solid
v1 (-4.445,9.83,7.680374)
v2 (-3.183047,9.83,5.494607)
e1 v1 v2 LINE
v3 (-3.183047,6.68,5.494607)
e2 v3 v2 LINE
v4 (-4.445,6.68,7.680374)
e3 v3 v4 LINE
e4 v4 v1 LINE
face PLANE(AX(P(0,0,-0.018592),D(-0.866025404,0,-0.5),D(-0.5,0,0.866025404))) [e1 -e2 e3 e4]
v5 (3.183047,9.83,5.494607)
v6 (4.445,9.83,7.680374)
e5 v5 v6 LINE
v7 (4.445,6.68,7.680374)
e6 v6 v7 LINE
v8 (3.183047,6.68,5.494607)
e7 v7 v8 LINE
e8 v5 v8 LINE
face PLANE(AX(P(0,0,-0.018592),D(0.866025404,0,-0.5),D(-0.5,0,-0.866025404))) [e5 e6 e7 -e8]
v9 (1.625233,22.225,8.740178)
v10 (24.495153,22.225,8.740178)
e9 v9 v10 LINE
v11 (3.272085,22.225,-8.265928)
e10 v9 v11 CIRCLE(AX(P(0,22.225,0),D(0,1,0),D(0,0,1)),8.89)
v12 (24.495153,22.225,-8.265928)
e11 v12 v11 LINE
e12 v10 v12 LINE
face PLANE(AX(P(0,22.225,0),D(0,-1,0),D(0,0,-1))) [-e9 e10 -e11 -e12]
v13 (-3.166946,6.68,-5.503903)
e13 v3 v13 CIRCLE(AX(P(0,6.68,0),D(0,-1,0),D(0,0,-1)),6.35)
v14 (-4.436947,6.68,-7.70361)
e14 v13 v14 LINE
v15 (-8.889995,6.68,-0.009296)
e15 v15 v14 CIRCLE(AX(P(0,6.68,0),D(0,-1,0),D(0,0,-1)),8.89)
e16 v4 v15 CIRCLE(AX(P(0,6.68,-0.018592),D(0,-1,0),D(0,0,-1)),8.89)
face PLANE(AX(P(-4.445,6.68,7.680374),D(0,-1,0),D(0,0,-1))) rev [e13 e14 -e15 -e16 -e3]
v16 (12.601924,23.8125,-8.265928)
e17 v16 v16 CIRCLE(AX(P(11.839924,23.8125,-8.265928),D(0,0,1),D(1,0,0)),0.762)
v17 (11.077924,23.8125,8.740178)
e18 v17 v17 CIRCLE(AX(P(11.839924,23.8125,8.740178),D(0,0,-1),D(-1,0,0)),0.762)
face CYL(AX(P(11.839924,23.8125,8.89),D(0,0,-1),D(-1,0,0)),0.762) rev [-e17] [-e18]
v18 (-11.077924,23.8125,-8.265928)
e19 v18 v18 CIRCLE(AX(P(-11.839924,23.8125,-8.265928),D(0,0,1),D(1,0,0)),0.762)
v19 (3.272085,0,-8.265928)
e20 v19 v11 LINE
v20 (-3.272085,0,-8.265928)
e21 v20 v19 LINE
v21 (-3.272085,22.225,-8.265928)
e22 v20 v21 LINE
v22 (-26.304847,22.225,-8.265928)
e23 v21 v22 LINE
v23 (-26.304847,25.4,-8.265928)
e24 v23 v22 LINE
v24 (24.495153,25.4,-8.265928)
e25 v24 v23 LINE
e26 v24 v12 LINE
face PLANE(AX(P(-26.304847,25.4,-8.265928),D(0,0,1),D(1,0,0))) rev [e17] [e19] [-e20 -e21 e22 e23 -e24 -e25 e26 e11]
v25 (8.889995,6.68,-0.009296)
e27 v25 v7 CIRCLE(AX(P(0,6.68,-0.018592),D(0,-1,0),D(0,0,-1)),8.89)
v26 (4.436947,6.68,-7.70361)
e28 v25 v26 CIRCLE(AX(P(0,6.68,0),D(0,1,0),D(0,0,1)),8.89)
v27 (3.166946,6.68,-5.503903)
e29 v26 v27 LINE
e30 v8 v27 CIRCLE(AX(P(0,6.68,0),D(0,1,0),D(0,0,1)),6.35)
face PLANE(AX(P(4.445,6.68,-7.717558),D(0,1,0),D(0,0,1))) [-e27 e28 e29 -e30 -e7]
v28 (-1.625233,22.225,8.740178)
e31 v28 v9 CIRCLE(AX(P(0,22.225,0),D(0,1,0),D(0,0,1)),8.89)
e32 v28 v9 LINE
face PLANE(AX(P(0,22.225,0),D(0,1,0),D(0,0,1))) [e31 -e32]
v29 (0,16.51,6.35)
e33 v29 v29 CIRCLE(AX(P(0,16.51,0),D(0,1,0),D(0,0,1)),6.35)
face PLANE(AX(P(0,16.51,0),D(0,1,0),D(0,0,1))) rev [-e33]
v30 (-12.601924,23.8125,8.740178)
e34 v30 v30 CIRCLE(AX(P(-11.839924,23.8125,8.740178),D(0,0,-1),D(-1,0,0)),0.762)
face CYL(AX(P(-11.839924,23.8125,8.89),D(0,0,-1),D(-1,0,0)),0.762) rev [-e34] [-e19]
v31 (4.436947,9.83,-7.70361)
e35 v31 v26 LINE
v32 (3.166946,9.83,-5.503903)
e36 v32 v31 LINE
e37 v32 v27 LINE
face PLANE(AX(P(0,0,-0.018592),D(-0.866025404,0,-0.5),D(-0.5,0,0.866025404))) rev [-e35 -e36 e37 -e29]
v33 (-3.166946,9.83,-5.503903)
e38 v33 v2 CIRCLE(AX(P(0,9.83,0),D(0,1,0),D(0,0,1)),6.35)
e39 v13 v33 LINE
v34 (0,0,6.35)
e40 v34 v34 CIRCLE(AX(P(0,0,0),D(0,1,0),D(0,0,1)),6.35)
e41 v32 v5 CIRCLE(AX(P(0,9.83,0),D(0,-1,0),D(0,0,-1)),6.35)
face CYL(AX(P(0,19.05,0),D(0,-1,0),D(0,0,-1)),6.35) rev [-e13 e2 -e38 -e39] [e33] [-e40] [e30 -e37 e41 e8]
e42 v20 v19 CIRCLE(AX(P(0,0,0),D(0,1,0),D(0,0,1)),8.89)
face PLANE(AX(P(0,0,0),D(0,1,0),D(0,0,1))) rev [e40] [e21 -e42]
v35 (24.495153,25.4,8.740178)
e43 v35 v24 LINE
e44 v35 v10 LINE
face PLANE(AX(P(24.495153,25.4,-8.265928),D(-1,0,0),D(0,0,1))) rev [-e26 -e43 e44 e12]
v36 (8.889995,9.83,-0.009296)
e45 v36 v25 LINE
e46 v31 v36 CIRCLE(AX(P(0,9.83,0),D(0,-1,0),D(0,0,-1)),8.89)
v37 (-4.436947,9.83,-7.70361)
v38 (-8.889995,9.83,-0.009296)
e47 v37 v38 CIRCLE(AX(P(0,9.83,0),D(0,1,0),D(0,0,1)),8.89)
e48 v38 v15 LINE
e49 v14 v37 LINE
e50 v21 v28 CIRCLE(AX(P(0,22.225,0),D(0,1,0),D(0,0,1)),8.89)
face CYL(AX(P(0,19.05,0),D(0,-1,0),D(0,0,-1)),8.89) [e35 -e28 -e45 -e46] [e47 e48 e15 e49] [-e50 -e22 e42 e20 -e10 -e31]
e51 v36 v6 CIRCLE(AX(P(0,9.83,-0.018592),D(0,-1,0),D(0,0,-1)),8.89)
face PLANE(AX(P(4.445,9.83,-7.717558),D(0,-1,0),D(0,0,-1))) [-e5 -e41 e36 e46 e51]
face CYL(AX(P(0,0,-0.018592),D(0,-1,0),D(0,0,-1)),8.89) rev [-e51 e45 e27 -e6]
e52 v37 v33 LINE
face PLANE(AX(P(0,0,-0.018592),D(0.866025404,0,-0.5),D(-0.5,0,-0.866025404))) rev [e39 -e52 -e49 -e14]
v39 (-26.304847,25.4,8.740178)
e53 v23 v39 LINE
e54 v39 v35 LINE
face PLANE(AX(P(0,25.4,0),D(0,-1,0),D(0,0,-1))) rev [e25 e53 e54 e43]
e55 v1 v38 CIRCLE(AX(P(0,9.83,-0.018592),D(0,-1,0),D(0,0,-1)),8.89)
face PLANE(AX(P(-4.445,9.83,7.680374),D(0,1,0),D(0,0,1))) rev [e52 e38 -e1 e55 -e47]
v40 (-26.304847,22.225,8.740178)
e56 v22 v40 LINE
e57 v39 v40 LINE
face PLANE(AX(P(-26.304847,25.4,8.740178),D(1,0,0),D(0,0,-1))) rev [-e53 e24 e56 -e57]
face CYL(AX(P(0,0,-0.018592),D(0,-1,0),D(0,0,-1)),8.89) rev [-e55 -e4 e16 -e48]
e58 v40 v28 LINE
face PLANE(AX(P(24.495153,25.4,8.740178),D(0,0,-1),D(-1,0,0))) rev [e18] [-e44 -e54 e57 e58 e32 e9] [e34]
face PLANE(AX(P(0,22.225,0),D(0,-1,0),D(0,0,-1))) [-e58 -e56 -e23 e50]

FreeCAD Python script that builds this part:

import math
import FreeCAD as App
import Part
import Sketcher

V = App.Vector
Q = App.Units.Quantity


def faces_at(feature, points):
    """Names of the faces that lie closest to the given points."""
    faces = feature.Shape.Faces
    near = lambda p: min(range(len(faces)), key=lambda i: faces[i].distToShape(Part.Vertex(*p))[0])
    return sorted({f"Face{near(p) + 1}" for p in points})


def add_polygon(sketch, points):
    """Adds a closed chain of lines whose ends are joined by coincident constraints."""
    first, n = sketch.GeometryCount, len(points)
    for a, b in zip(points, points[1:] + points[:1]):
        sketch.addGeometry(Part.LineSegment(App.Vector(*a, 0), App.Vector(*b, 0)), False)
    for i in range(n):
        sketch.addConstraint(Sketcher.Constraint("Coincident", first + i, 2, first + (i + 1) % n, 1))

doc = App.newDocument("Part")
body = doc.addObject("PartDesign::Body", "Body")

# Sketch on XZ plane
sketch1 = body.newObject("Sketcher::SketchObject", "Sketch")
sketch1.AttachmentSupport = (doc.getObject("XZ_Plane"), [""])
sketch1.MapMode = "FlatFace"
sketch1.addGeometry(Part.Circle(V(0, 0, 0), V(0, 0, 1), 8.89), False)
sketch1.addConstraint([
    Sketcher.Constraint("Coincident", 0, 3, -1, 1),
    Sketcher.Constraint("Diameter", 0, Q("0.7 in")),
])
pad1 = body.newObject("PartDesign::Pad", "Pad")
pad1.Profile = sketch1
pad1.Length = Q("0.75 in")
pad1.Reversed = True
doc.recompute()

thickness = body.newObject("PartDesign::Thickness", "Thickness")
thickness.Base = (pad1, faces_at(pad1, [(0, 0, 0)]))
thickness.Value = Q("0.1 in")
thickness.Reversed = True
thickness.Join = "Intersection"

# Sketch on XZ plane
sketch2 = body.newObject("Sketcher::SketchObject", "Sketch001")
sketch2.AttachmentSupport = (doc.getObject("XZ_Plane"), [""])
sketch2.MapMode = "FlatFace"
sketch2.AttachmentOffset = App.Placement(V(0, 0, -0.75 * 25.4), App.Rotation())
sketch2.addGeometry(Part.Circle(V(0, 0, 0), V(0, 0, 1), 8.89), False)
sketch2.addConstraint([
    Sketcher.Constraint("Coincident", 0, 3, -1, 1),
    Sketcher.Constraint("Diameter", 0, Q("0.7 in")),
])
pad2 = body.newObject("PartDesign::Pad", "Pad001")
pad2.Profile = sketch2
pad2.Length = Q("0.125 in")
pad2.Reversed = True

# Sketch on XZ plane
sketch3 = body.newObject("Sketcher::SketchObject", "Sketch002")
sketch3.AttachmentSupport = (doc.getObject("XZ_Plane"), [""])
sketch3.MapMode = "FlatFace"
sketch3.AttachmentOffset = App.Placement(V(0, 0, -0.875 * 25.4), App.Rotation())
add_polygon(sketch3, [(-26.304847, -8.265928), (-26.304847, 8.740178), (24.495153, 8.740178), (24.495153, -8.265928)])  # lines 0-3
sketch3.addConstraint([
    Sketcher.Constraint("Vertical", 0),
    Sketcher.Constraint("Horizontal", 1),
    Sketcher.Constraint("Vertical", 2),
    Sketcher.Constraint("Horizontal", 3),
    Sketcher.Constraint("DistanceX", 1, 1, 1, 2, Q("2 in")),
    Sketcher.Constraint("DistanceY", 0, 1, 0, 2, Q("17.006106 mm")),
    Sketcher.Constraint("DistanceY", -1, 1, 0, 2, Q("8.740178 mm")),
    Sketcher.Constraint("DistanceX", 0, 2, -1, 1, Q("26.304847 mm")),
])
pad3 = body.newObject("PartDesign::Pad", "Pad002")
pad3.Profile = sketch3
pad3.Length = Q("0.125 in")
pad3.Reversed = True

# Sketch on XY plane
sketch4 = body.newObject("Sketcher::SketchObject", "Sketch003")
sketch4.AttachmentSupport = (doc.getObject("XY_Plane"), [""])
sketch4.MapMode = "FlatFace"
sketch4.AttachmentOffset = App.Placement(V(0, 0, -0.018592), App.Rotation())
add_polygon(sketch4, [(8.89, 9.83), (8.89, 6.68), (5.08, 6.68), (5.08, 9.83)])  # lines 0-3
add_polygon(sketch4, [(-5.08, 9.83), (-5.08, 6.68), (-8.89, 6.68), (-8.89, 9.83)])  # lines 4-7
sketch4.addConstraint([
    Sketcher.Constraint("Vertical", 0),
    Sketcher.Constraint("Horizontal", 1),
    Sketcher.Constraint("Vertical", 2),
    Sketcher.Constraint("Horizontal", 3),
    Sketcher.Constraint("Vertical", 4),
    Sketcher.Constraint("Horizontal", 5),
    Sketcher.Constraint("Vertical", 6),
    Sketcher.Constraint("Horizontal", 7),
    Sketcher.Constraint("Symmetric", 1, 2, 4, 2, -2),
    Sketcher.Constraint("Symmetric", 3, 2, 6, 2, -2),
    Sketcher.Constraint("DistanceX", 1, 2, 1, 1, Q("0.15 in")),
    Sketcher.Constraint("DistanceX", -1, 1, 1, 2, Q("0.2 in")),
    Sketcher.Constraint("DistanceY", 0, 2, 0, 1, Q("3.15 mm")),
    Sketcher.Constraint("DistanceY", -1, 1, 0, 2, Q("6.68 mm")),
])
groove = body.newObject("PartDesign::Groove", "Groove")
groove.Profile = sketch4
groove.ReferenceAxis = (sketch4, ["V_Axis"])
groove.Angle = 60

# Sketch on XY plane
sketch5 = body.newObject("Sketcher::SketchObject", "Sketch004")
sketch5.AttachmentSupport = (doc.getObject("XY_Plane"), [""])
sketch5.MapMode = "FlatFace"
sketch5.AttachmentOffset = App.Placement(V(0, 0, -0.018592), App.Rotation())
add_polygon(sketch5, [(8.89, 9.83), (8.89, 6.68), (5.08, 6.68), (5.08, 9.83)])  # lines 0-3
add_polygon(sketch5, [(-5.08, 9.83), (-5.08, 6.68), (-8.89, 6.68), (-8.89, 9.83)])  # lines 4-7
sketch5.addConstraint([
    Sketcher.Constraint("Vertical", 0),
    Sketcher.Constraint("Horizontal", 1),
    Sketcher.Constraint("Vertical", 2),
    Sketcher.Constraint("Horizontal", 3),
    Sketcher.Constraint("Vertical", 4),
    Sketcher.Constraint("Horizontal", 5),
    Sketcher.Constraint("Vertical", 6),
    Sketcher.Constraint("Horizontal", 7),
    Sketcher.Constraint("Symmetric", 1, 2, 4, 2, -2),
    Sketcher.Constraint("Symmetric", 3, 2, 6, 2, -2),
    Sketcher.Constraint("DistanceX", 1, 2, 1, 1, Q("0.15 in")),
    Sketcher.Constraint("DistanceX", -1, 1, 1, 2, Q("0.2 in")),
    Sketcher.Constraint("DistanceY", 0, 2, 0, 1, Q("3.15 mm")),
    Sketcher.Constraint("DistanceY", -1, 1, 0, 2, Q("6.68 mm")),
])
groove2 = body.newObject("PartDesign::Groove", "Groove001")
groove2.Profile = sketch5
groove2.ReferenceAxis = (sketch5, ["V_Axis"])
groove2.Angle = 60
groove2.Reversed = True

# Sketch on XY plane
sketch6 = body.newObject("Sketcher::SketchObject", "Sketch005")
sketch6.AttachmentSupport = (doc.getObject("XY_Plane"), [""])
sketch6.MapMode = "FlatFace"
sketch6.AttachmentOffset = App.Placement(V(0, 0, -4.489512), App.Rotation())
sketch6.addGeometry([
    Part.Circle(V(11.839924, 23.8125, 0), V(0, 0, 1), 0.762),
    Part.Circle(V(-11.839924, 23.8125, 0), V(0, 0, 1), 0.762),
], False)
sketch6.addConstraint([
    Sketcher.Constraint("Equal", 0, 1),
    Sketcher.Constraint("Symmetric", 0, 3, 1, 3, -2),
    Sketcher.Constraint("Diameter", 0, Q("0.06 in")),
    Sketcher.Constraint("DistanceY", -1, 1, 0, 3, Q("0.9375 in")),
    Sketcher.Constraint("DistanceX", -1, 1, 0, 3, Q("11.839924 mm")),
])
pocket1 = body.newObject("PartDesign::Pocket", "Pocket")
pocket1.Profile = sketch6
pocket1.Type = "ThroughAll"
pocket1.Midplane = True

# Sketch on XZ plane
sketch7 = body.newObject("Sketcher::SketchObject", "Sketch006")
sketch7.AttachmentSupport = (doc.getObject("XZ_Plane"), [""])
sketch7.MapMode = "FlatFace"
sketch7.AttachmentOffset = App.Placement(V(0, 0, -0.875 * 25.4), App.Rotation())
sketch7.addGeometry([
    Part.LineSegment(V(-3.272085, -8.265928, 0), V(3.272085, -8.265928, 0)),
    Part.ArcOfCircle(Part.Circle(V(0, 0, 0), V(0, 0, 1), 8.89), math.radians(-111.596243), math.radians(-68.403757)),
], False)
sketch7.addConstraint([
    Sketcher.Constraint("Coincident", 0, 1, 1, 1),
    Sketcher.Constraint("Coincident", 1, 2, 0, 2),
    Sketcher.Constraint("Horizontal", 0),
    Sketcher.Constraint("Coincident", 1, 3, -1, 1),
    Sketcher.Constraint("Radius", 1, Q("0.35 in")),
    Sketcher.Constraint("DistanceX", 0, 1, 0, 2, Q("6.54417 mm")),
])
pocket2 = body.newObject("PartDesign::Pocket", "Pocket001")
pocket2.Profile = sketch7
pocket2.Type = "ThroughAll"
pocket2.Reversed = True

doc.recompute()
